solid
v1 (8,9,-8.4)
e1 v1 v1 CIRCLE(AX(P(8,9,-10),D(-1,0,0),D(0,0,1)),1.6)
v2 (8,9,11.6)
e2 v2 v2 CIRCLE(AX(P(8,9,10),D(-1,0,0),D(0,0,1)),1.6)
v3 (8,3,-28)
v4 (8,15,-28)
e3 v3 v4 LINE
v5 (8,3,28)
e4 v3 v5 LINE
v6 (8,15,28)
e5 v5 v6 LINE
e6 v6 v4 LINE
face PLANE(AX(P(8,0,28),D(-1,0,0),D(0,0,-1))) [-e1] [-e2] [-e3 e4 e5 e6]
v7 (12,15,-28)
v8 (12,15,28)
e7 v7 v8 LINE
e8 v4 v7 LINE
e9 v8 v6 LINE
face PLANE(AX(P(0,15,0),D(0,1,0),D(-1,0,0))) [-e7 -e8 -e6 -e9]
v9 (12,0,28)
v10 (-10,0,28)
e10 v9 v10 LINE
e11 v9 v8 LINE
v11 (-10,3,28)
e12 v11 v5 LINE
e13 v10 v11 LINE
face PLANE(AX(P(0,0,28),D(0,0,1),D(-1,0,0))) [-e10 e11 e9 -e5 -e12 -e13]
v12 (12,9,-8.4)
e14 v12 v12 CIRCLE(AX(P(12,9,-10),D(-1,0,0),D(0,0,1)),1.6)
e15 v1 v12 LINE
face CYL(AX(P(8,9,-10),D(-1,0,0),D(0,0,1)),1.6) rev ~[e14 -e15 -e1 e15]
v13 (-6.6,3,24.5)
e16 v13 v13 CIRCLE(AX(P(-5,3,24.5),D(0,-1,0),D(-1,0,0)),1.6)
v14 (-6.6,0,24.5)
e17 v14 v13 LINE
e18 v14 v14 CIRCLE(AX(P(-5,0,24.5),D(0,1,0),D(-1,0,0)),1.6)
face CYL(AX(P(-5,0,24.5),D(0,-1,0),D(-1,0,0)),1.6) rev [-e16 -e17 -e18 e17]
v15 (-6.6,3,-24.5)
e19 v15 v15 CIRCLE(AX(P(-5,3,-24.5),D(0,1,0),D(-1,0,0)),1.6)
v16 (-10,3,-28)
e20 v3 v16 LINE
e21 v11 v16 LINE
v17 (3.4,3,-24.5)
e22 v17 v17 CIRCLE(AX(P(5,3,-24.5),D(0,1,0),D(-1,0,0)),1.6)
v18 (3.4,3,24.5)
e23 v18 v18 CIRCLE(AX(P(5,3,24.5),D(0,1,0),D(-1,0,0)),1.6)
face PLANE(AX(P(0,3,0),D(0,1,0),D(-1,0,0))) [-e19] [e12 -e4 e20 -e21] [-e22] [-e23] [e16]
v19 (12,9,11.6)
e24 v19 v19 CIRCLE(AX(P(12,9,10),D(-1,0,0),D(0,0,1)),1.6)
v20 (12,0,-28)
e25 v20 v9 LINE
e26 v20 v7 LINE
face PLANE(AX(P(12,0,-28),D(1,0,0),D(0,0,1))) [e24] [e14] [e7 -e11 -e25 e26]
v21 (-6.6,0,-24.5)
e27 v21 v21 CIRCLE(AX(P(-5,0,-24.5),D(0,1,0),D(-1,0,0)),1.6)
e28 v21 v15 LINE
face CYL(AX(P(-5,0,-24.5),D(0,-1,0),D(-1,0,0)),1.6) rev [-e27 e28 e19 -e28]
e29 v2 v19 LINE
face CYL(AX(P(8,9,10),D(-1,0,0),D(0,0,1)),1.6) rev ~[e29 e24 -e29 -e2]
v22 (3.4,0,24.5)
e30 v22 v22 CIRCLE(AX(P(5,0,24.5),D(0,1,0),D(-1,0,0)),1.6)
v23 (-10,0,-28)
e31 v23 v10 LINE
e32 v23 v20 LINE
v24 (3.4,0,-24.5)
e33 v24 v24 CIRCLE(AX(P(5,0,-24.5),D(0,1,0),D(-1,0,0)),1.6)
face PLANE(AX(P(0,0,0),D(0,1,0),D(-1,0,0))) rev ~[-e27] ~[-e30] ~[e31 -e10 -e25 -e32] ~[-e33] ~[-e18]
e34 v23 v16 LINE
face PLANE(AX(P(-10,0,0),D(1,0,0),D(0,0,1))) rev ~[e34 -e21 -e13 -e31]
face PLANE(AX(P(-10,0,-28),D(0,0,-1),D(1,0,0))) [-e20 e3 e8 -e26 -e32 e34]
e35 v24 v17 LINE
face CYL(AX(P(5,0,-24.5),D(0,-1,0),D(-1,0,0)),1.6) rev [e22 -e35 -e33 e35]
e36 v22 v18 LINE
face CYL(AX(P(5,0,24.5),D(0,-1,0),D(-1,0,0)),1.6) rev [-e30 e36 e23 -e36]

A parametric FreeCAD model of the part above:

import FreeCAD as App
import Part
import Sketcher
from FreeCAD import Vector


def add_polygon(sketch, points):
    """Adds a closed chain of lines whose ends are joined by coincident constraints."""
    first, n = sketch.GeometryCount, len(points)
    for a, b in zip(points, points[1:] + points[:1]):
        sketch.addGeometry(Part.LineSegment(App.Vector(*a, 0), App.Vector(*b, 0)), False)
    for i in range(n):
        sketch.addConstraint(Sketcher.Constraint("Coincident", first + i, 2, first + (i + 1) % n, 1))

doc = App.newDocument("Part")
params = doc.addObject("Spreadsheet::Sheet", "Params")
for row, (alias, value) in enumerate([
    ("sketch1_diameter", "3.2 mm"),
    ("sketch1_height", "56 mm"),
    ("pad1_length", "3 mm"),
    ("sketch2_width", "4 mm"),
    ("sketch2_height", "56 mm"),
    ("pad2_length", "15 mm"),
    ("sketch3_diameter", "3.2 mm"),
    ("pocket1_length", "15 mm"),
], start=1):
    params.set(f"A{row}", alias)
    params.set(f"B{row}", "=" + value)
    params.setAlias(f"B{row}", alias)

body = doc.addObject("PartDesign::Body", "Body")

# Sketch on XZ plane
sketch1 = body.newObject("Sketcher::SketchObject", "Sketch")
sketch1.AttachmentSupport = (doc.getObject("XZ_Plane"), [""])
sketch1.MapMode = "FlatFace"
add_polygon(sketch1, [(-10, 28), (10, 28), (10, -28), (-10, -28)])  # lines 0-3
sketch1.addGeometry(Part.Circle(Vector(-5, 24.5, 0), Vector(0, 0, 1), 1.6), False)  # 4
sketch1.addGeometry(Part.Circle(Vector(-5, -24.5, 0), Vector(0, 0, 1), 1.6), False)  # 5
sketch1.addGeometry(Part.Circle(Vector(5, -24.5, 0), Vector(0, 0, 1), 1.6), False)  # 6
sketch1.addGeometry(Part.Circle(Vector(5, 24.5, 0), Vector(0, 0, 1), 1.6), False)  # 7
sketch1.addConstraint([
    Sketcher.Constraint("Horizontal", 0),
    Sketcher.Constraint("Vertical", 1),
    Sketcher.Constraint("Horizontal", 2),
    Sketcher.Constraint("Vertical", 3),
    Sketcher.Constraint("Equal", 4, 5),
    Sketcher.Constraint("Equal", 5, 6),
    Sketcher.Constraint("Equal", 6, 7),
    Sketcher.Constraint("Symmetric", 4, 3, 6, 3, -1, 1),
    Sketcher.Constraint("Symmetric", 5, 3, 7, 3, -1, 1),
    Sketcher.Constraint("Symmetric", 0, 2, 2, 2, -1, 1),
    Sketcher.Constraint("Symmetric", 5, 3, 6, 3, -2),
    Sketcher.Constraint("Diameter", 4, 3.2),
    Sketcher.Constraint("DistanceX", 4, 3, -1, 1, 5.0),
    Sketcher.Constraint("DistanceX", 7, 3, 0, 2, 5.0),
    Sketcher.Constraint("DistanceY", -1, 1, 4, 3, 24.5),
    Sketcher.Constraint("DistanceY", 1, 2, 1, 1, 56.0),
])
sketch1.setExpression("Constraints[15]", "Params.sketch1_diameter")
sketch1.setExpression("Constraints[19]", "Params.sketch1_height")
pad1 = body.newObject("PartDesign::Pad", "Pad")
pad1.Profile = sketch1
pad1.setExpression("Length", "Params.pad1_length")
pad1.Reversed = True

# Sketch on XZ plane
sketch2 = body.newObject("Sketcher::SketchObject", "Sketch001")
sketch2.AttachmentSupport = (doc.getObject("XZ_Plane"), [""])
sketch2.MapMode = "FlatFace"
add_polygon(sketch2, [(8, -28), (8, 28), (12, 28), (12, -28)])  # lines 0-3
sketch2.addConstraint([
    Sketcher.Constraint("Vertical", 0),
    Sketcher.Constraint("Horizontal", 1),
    Sketcher.Constraint("Vertical", 2),
    Sketcher.Constraint("Horizontal", 3),
    Sketcher.Constraint("DistanceX", 1, 1, 1, 2, 4.0),
    Sketcher.Constraint("DistanceY", 0, 1, 0, 2, 56.0),
    Sketcher.Constraint("DistanceX", -1, 1, 0, 2, 8.0),
    Sketcher.Constraint("DistanceY", -1, 1, 0, 2, 28.0),
])
sketch2.setExpression("Constraints[8]", "Params.sketch2_width")
sketch2.setExpression("Constraints[9]", "Params.sketch2_height")
pad2 = body.newObject("PartDesign::Pad", "Pad001")
pad2.Profile = sketch2
pad2.setExpression("Length", "Params.pad2_length")
pad2.Reversed = True

# Sketch on YZ plane
sketch3 = body.newObject("Sketcher::SketchObject", "Sketch002")
sketch3.AttachmentSupport = (doc.getObject("YZ_Plane"), [""])
sketch3.MapMode = "FlatFace"
sketch3.AttachmentOffset = App.Placement(Vector(0, 0, 8), App.Rotation())
sketch3.addGeometry([
    Part.Circle(Vector(9, 10, 0), Vector(0, 0, 1), 1.6),
    Part.Circle(Vector(9, -10, 0), Vector(0, 0, 1), 1.6),
], False)
sketch3.addConstraint([
    Sketcher.Constraint("Equal", 0, 1),
    Sketcher.Constraint("Symmetric", 0, 3, 1, 3, -1),
    Sketcher.Constraint("Diameter", 0, 3.2),
    Sketcher.Constraint("DistanceY", -1, 1, 0, 3, 10.0),
    Sketcher.Constraint("DistanceX", -1, 1, 0, 3, 9.0),
])
sketch3.setExpression("Constraints[2]", "Params.sketch3_diameter")
pocket1 = body.newObject("PartDesign::Pocket", "Pocket")
pocket1.Profile = sketch3
pocket1.setExpression("Length", "Params.pocket1_length")
pocket1.Reversed = True

doc.recompute()
